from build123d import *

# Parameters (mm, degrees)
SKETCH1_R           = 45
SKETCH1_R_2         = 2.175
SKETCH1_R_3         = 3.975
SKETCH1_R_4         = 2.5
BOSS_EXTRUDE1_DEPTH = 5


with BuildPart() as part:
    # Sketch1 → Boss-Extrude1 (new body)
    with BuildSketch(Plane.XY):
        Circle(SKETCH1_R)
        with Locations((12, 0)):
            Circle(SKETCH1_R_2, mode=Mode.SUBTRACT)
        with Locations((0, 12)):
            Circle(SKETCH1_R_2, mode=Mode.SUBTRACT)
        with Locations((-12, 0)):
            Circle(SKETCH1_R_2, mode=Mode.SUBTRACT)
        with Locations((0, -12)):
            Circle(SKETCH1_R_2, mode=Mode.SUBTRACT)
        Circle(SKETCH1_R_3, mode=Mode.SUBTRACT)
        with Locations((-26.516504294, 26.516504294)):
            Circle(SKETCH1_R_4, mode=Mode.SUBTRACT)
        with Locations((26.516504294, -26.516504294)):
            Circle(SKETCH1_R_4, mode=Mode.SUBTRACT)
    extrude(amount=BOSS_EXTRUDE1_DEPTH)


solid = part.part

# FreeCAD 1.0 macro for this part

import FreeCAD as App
import Part
import Sketcher
from FreeCAD import Vector

doc = App.newDocument("Part")
body = doc.addObject("PartDesign::Body", "Body")

# Sketch on XY plane
sketch1 = body.newObject("Sketcher::SketchObject", "Sketch")
sketch1.AttachmentSupport = (doc.getObject("XY_Plane"), [""])
sketch1.MapMode = "FlatFace"
sketch1.addGeometry([
    Part.Circle(Vector(0, 0, 0), Vector(0, 0, 1), 45),  # 0
    Part.Circle(Vector(26.516504, -26.516504, 0), Vector(0, 0, 1), 2.5),  # 1
    Part.Circle(Vector(0, -12, 0), Vector(0, 0, 1), 2.175),  # 2
    Part.Circle(Vector(-12, 0, 0), Vector(0, 0, 1), 2.175),  # 3
    Part.Circle(Vector(-26.516504, 26.516504, 0), Vector(0, 0, 1), 2.5),  # 4
    Part.Circle(Vector(0, 0, 0), Vector(0, 0, 1), 3.975),  # 5
    Part.Circle(Vector(12, 0, 0), Vector(0, 0, 1), 2.175),  # 6
    Part.Circle(Vector(0, 12, 0), Vector(0, 0, 1), 2.175),  # 7
], False)
sketch1.addConstraint([
    Sketcher.Constraint("Coincident", 0, 3, -1, 1),
    Sketcher.Constraint("Coincident", 5, 3, -1, 1),
    Sketcher.Constraint("Equal", 2, 3),
    Sketcher.Constraint("Equal", 1, 4),
    Sketcher.Constraint("Equal", 3, 6),
    Sketcher.Constraint("Equal", 6, 7),
    Sketcher.Constraint("Symmetric", 1, 3, 4, 3, -1, 1),
    Sketcher.Constraint("Symmetric", 3, 3, 6, 3, -1, 1),
    Sketcher.Constraint("Symmetric", 2, 3, 7, 3, -1, 1),
    Sketcher.Constraint("PointOnObject", 2, 3, -2),
    Sketcher.Constraint("PointOnObject", 3, 3, -1),
    Sketcher.Constraint("Diameter", 0, 90.0),
    Sketcher.Constraint("Diameter", 1, 5.0),
    Sketcher.Constraint("Diameter", 2, 4.35),
    Sketcher.Constraint("Diameter", 5, 7.95),
    Sketcher.Constraint("DistanceY", 2, 3, -1, 1, 12.0),
    Sketcher.Constraint("DistanceX", 3, 3, -1, 1, 12.0),
    Sketcher.Constraint("DistanceX", 4, 3, 1, 3, 53.033009),
    Sketcher.Constraint("DistanceY", 1, 3, 4, 3, 53.033009),
])
pad1 = body.newObject("PartDesign::Pad", "Pad")
pad1.Profile = sketch1
pad1.Length = 5

doc.recompute()
